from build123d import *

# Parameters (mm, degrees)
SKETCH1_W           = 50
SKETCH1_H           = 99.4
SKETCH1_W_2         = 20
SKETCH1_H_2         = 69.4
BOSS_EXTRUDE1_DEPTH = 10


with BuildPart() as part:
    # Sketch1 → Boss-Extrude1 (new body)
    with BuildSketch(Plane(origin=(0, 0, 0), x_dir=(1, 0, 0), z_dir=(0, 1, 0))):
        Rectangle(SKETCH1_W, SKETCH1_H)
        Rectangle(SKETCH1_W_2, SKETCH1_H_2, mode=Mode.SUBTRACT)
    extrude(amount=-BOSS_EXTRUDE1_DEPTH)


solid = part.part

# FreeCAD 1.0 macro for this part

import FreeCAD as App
import Part
import Sketcher
from FreeCAD import Vector
Q = App.Units.Quantity


def add_polygon(sketch, points):
    """Adds a closed chain of lines whose ends are joined by coincident constraints."""
    first, n = sketch.GeometryCount, len(points)
    for a, b in zip(points, points[1:] + points[:1]):
        sketch.addGeometry(Part.LineSegment(App.Vector(*a, 0), App.Vector(*b, 0)), False)
    for i in range(n):
        sketch.addConstraint(Sketcher.Constraint("Coincident", first + i, 2, first + (i + 1) % n, 1))

doc = App.newDocument("Part")
body = doc.addObject("PartDesign::Body", "Body")

# Sketch on XZ plane
sketch1 = body.newObject("Sketcher::SketchObject", "Sketch")
sketch1.AttachmentSupport = (doc.getObject("XZ_Plane"), [""])
sketch1.MapMode = "FlatFace"
add_polygon(sketch1, [(-25, -49.7), (-25, 49.7), (25, 49.7), (25, -49.7)])  # lines 0-3
add_polygon(sketch1, [(10, 34.7), (-10, 34.7), (-10, -34.7), (10, -34.7)])  # lines 4-7
sketch1.addConstraint(Sketcher.Constraint("Vertical", 0))
sketch1.addConstraint(Sketcher.Constraint("Horizontal", 1))
sketch1.addConstraint(Sketcher.Constraint("Vertical", 2))
sketch1.addConstraint(Sketcher.Constraint("Horizontal", 3))
sketch1.addConstraint(Sketcher.Constraint("Horizontal", 4))
sketch1.addConstraint(Sketcher.Constraint("Vertical", 5))
sketch1.addConstraint(Sketcher.Constraint("Horizontal", 6))
sketch1.addConstraint(Sketcher.Constraint("Vertical", 7))
sketch1.addConstraint(Sketcher.Constraint("Symmetric", 0, 2, 2, 2, -1, 1))
sketch1.addConstraint(Sketcher.Constraint("Symmetric", 4, 2, 6, 2, -1, 1))
sketch1.addConstraint(Sketcher.Constraint("DistanceX", 1, 1, 1, 2, Q("50 mm")))
sketch1.addConstraint(Sketcher.Constraint("DistanceX", 4, 2, 4, 1, Q("20 mm")))
sketch1.addConstraint(Sketcher.Constraint("DistanceY", 0, 1, 0, 2, Q("99.4 mm")))
sketch1.addConstraint(Sketcher.Constraint("DistanceY", 5, 2, 5, 1, Q("69.4 mm")))
pad1 = body.newObject("PartDesign::Pad", "Pad")
pad1.Profile = sketch1
pad1.Length = 10

doc.recompute()
